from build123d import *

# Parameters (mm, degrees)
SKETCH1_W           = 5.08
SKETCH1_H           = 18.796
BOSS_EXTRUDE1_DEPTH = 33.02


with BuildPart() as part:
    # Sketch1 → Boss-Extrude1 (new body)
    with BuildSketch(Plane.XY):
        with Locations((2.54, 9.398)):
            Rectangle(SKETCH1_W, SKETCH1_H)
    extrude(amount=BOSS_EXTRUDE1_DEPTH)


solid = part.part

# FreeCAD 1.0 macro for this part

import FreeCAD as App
import Part
import Sketcher
from FreeCAD import Vector
Q = App.Units.Quantity

doc = App.newDocument("Part")
body = doc.addObject("PartDesign::Body", "Body")

# Sketch on XY plane
sketch1 = doc.addObject("Sketcher::SketchObject", "Sketch")
body.addObject(sketch1)
sketch1.AttachmentSupport = (doc.XY_Plane, [""])
sketch1.MapMode = "FlatFace"
sketch1.addGeometry([
    Part.LineSegment(Vector(0, 18.796, 0), Vector(0, 0, 0)),
    Part.LineSegment(Vector(0, 0, 0), Vector(5.08, 0, 0)),
    Part.LineSegment(Vector(5.08, 0, 0), Vector(5.08, 18.796, 0)),
    Part.LineSegment(Vector(5.08, 18.796, 0), Vector(0, 18.796, 0)),
], False)
sketch1.addConstraint([
    Sketcher.Constraint("Coincident", 0, 2, 1, 1),
    Sketcher.Constraint("Coincident", 1, 2, 2, 1),
    Sketcher.Constraint("Coincident", 2, 2, 3, 1),
    Sketcher.Constraint("Coincident", 3, 2, 0, 1),
    Sketcher.Constraint("Vertical", 0),
    Sketcher.Constraint("Horizontal", 1),
    Sketcher.Constraint("Vertical", 2),
    Sketcher.Constraint("Horizontal", 3),
    Sketcher.Constraint("Coincident", 0, 2, -1, 1),
    Sketcher.Constraint("DistanceX", 1, 1, 1, 2, Q("0.2 in")),
    Sketcher.Constraint("DistanceY", 0, 2, 0, 1, Q("0.74 in")),
])
pad1 = doc.addObject("PartDesign::Pad", "Pad")
body.addObject(pad1)
pad1.Profile = sketch1
pad1.Length = Q("1.3 in")

doc.recompute()
